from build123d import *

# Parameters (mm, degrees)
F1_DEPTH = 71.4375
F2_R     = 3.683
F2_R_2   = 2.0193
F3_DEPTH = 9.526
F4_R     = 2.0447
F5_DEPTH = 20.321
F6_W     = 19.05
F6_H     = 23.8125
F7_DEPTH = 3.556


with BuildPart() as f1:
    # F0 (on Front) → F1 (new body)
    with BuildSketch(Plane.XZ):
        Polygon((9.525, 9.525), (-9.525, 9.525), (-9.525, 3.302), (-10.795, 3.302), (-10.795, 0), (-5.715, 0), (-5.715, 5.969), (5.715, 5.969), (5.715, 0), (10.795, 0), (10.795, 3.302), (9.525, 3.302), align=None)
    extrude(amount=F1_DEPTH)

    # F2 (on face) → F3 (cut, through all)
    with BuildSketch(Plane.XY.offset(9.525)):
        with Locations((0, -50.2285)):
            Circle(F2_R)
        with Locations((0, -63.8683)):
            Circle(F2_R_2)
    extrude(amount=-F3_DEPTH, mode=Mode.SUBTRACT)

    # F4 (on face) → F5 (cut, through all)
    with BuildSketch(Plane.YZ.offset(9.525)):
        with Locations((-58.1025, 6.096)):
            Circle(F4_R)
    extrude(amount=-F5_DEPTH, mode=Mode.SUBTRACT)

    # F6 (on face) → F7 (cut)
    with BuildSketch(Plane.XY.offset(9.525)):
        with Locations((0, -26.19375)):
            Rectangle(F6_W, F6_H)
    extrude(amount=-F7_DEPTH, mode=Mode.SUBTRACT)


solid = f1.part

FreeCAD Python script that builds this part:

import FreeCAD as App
import Part
import Sketcher
from FreeCAD import Vector
Q = App.Units.Quantity

doc = App.newDocument("Part")
body = doc.addObject("PartDesign::Body", "Body")

# Sketch on XZ plane
sketch1 = body.newObject("Sketcher::SketchObject", "Sketch")
sketch1.AttachmentSupport = (doc.getObject("XZ_Plane"), [""])
sketch1.MapMode = "FlatFace"
sketch1.addGeometry([
    Part.LineSegment(Vector(9.5, 9.5, 0), Vector(-9.5, 9.5, 0)),  # 0
    Part.LineSegment(Vector(-9.5, 9.5, 0), Vector(-9.5, 3.3, 0)),  # 1
    Part.LineSegment(Vector(-9.5, 3.3, 0), Vector(-10.8, 3.3, 0)),  # 2
    Part.LineSegment(Vector(-10.8, 3.3, 0), Vector(-10.8, 0, 0)),  # 3
    Part.LineSegment(Vector(-10.8, 0, 0), Vector(-5.7, 0, 0)),  # 4
    Part.LineSegment(Vector(-5.7, 0, 0), Vector(-5.7, 6, 0)),  # 5
    Part.LineSegment(Vector(-5.7, 6, 0), Vector(5.7, 6, 0)),  # 6
    Part.LineSegment(Vector(5.7, 6, 0), Vector(5.7, 0, 0)),  # 7
    Part.LineSegment(Vector(5.7, 0, 0), Vector(10.8, 0, 0)),  # 8
    Part.LineSegment(Vector(10.8, 0, 0), Vector(10.8, 3.3, 0)),  # 9
    Part.LineSegment(Vector(10.8, 3.3, 0), Vector(9.5, 3.3, 0)),  # 10
    Part.LineSegment(Vector(9.5, 3.3, 0), Vector(9.5, 9.5, 0)),  # 11
], False)
sketch1.addConstraint([
    Sketcher.Constraint("Coincident", 0, 2, 1, 1),
    Sketcher.Constraint("Coincident", 1, 2, 2, 1),
    Sketcher.Constraint("Coincident", 2, 2, 3, 1),
    Sketcher.Constraint("Coincident", 3, 2, 4, 1),
    Sketcher.Constraint("Coincident", 4, 2, 5, 1),
    Sketcher.Constraint("Coincident", 5, 2, 6, 1),
    Sketcher.Constraint("Coincident", 6, 2, 7, 1),
    Sketcher.Constraint("Coincident", 7, 2, 8, 1),
    Sketcher.Constraint("Coincident", 8, 2, 9, 1),
    Sketcher.Constraint("Coincident", 9, 2, 10, 1),
    Sketcher.Constraint("Coincident", 10, 2, 11, 1),
    Sketcher.Constraint("Coincident", 11, 2, 0, 1),
    Sketcher.Constraint("Horizontal", 0),
    Sketcher.Constraint("Vertical", 1),
    Sketcher.Constraint("Horizontal", 2),
    Sketcher.Constraint("Vertical", 3),
    Sketcher.Constraint("Horizontal", 4),
    Sketcher.Constraint("Vertical", 5),
    Sketcher.Constraint("Horizontal", 6),
    Sketcher.Constraint("Vertical", 7),
    Sketcher.Constraint("Horizontal", 8),
    Sketcher.Constraint("Vertical", 9),
    Sketcher.Constraint("Horizontal", 10),
    Sketcher.Constraint("Vertical", 11),
    Sketcher.Constraint("Symmetric", 4, 2, 7, 2, -1, 1),
    Sketcher.Constraint("Symmetric", 3, 2, 8, 2, -2),
    Sketcher.Constraint("Symmetric", 1, 2, 10, 2, -2),
    Sketcher.Constraint("DistanceX", 4, 1, 4, 2, Q("0.2 in")),
    Sketcher.Constraint("DistanceX", 0, 2, 0, 1, Q("0.75 in")),
    Sketcher.Constraint("DistanceX", 2, 2, 2, 1, Q("0.05 in")),
    Sketcher.Constraint("DistanceY", 3, 2, 3, 1, Q("0.13 in")),
    Sketcher.Constraint("DistanceY", 1, 2, 1, 1, Q("0.245 in")),
    Sketcher.Constraint("DistanceY", 5, 1, 5, 2, Q("0.235 in")),
])
pad1 = body.newObject("PartDesign::Pad", "Pad")
pad1.Profile = sketch1
pad1.Length = Q("2.8125 in")

# Sketch on XY plane
sketch2 = body.newObject("Sketcher::SketchObject", "Sketch001")
sketch2.AttachmentSupport = (doc.getObject("XY_Plane"), [""])
sketch2.MapMode = "FlatFace"
sketch2.AttachmentOffset = App.Placement(Vector(0, 0, 0.375 * 25.4), App.Rotation())
sketch2.addGeometry([
    Part.Circle(Vector(0, -50.2, 0), Vector(0, 0, 1), 3.7),
    Part.Circle(Vector(0, -63.9, 0), Vector(0, 0, 1), 2),
], False)
sketch2.addConstraint([
    Sketcher.Constraint("PointOnObject", 0, 3, -2),
    Sketcher.Constraint("PointOnObject", 1, 3, -2),
    Sketcher.Constraint("Diameter", 0, Q("0.29 in")),
    Sketcher.Constraint("Diameter", 1, Q("0.159 in")),
    Sketcher.Constraint("DistanceY", 1, 3, 0, 3, Q("0.537 in")),
    Sketcher.Constraint("DistanceY", 0, 3, -1, 1, Q("1.9775 in")),
])
pocket1 = body.newObject("PartDesign::Pocket", "Pocket")
pocket1.Profile = sketch2
pocket1.Type = "ThroughAll"

# Sketch on YZ plane
sketch3 = body.newObject("Sketcher::SketchObject", "Sketch002")
sketch3.AttachmentSupport = (doc.getObject("YZ_Plane"), [""])
sketch3.MapMode = "FlatFace"
sketch3.AttachmentOffset = App.Placement(Vector(0, 0, 0.375 * 25.4), App.Rotation())
sketch3.addGeometry(Part.Circle(Vector(-58.1, 6.1, 0), Vector(0, 0, 1), 2), False)
sketch3.addConstraint([
    Sketcher.Constraint("Diameter", 0, Q("0.161 in")),
    Sketcher.Constraint("DistanceY", -1, 1, 0, 3, Q("0.24 in")),
    Sketcher.Constraint("DistanceX", 0, 3, -1, 1, Q("2.2875 in")),
])
pocket2 = body.newObject("PartDesign::Pocket", "Pocket001")
pocket2.Profile = sketch3
pocket2.Type = "ThroughAll"

# Sketch on XY plane
sketch4 = body.newObject("Sketcher::SketchObject", "Sketch003")
sketch4.AttachmentSupport = (doc.getObject("XY_Plane"), [""])
sketch4.MapMode = "FlatFace"
sketch4.AttachmentOffset = App.Placement(Vector(0, 0, 0.375 * 25.4), App.Rotation())
sketch4.addGeometry([
    Part.LineSegment(Vector(-10, -14, 0), Vector(-10, -38, 0)),
    Part.LineSegment(Vector(-10, -38, 0), Vector(10, -38, 0)),
    Part.LineSegment(Vector(10, -38, 0), Vector(10, -14, 0)),
    Part.LineSegment(Vector(10, -14, 0), Vector(-10, -14, 0)),
], False)
sketch4.addConstraint([
    Sketcher.Constraint("Coincident", 0, 2, 1, 1),
    Sketcher.Constraint("Coincident", 1, 2, 2, 1),
    Sketcher.Constraint("Coincident", 2, 2, 3, 1),
    Sketcher.Constraint("Coincident", 3, 2, 0, 1),
    Sketcher.Constraint("Vertical", 0),
    Sketcher.Constraint("Horizontal", 1),
    Sketcher.Constraint("Vertical", 2),
    Sketcher.Constraint("Horizontal", 3),
    Sketcher.Constraint("DistanceX", 1, 1, 1, 2, Q("0.75 in")),
    Sketcher.Constraint("DistanceY", 0, 2, -1, 1, Q("1.5 in")),
    Sketcher.Constraint("DistanceY", 0, 2, 0, 1, Q("0.9375 in")),
    Sketcher.Constraint("DistanceX", 0, 2, -1, 1, Q("0.375 in")),
])
pocket3 = body.newObject("PartDesign::Pocket", "Pocket002")
pocket3.Profile = sketch4
pocket3.Length = Q("0.14 in")

doc.recompute()
